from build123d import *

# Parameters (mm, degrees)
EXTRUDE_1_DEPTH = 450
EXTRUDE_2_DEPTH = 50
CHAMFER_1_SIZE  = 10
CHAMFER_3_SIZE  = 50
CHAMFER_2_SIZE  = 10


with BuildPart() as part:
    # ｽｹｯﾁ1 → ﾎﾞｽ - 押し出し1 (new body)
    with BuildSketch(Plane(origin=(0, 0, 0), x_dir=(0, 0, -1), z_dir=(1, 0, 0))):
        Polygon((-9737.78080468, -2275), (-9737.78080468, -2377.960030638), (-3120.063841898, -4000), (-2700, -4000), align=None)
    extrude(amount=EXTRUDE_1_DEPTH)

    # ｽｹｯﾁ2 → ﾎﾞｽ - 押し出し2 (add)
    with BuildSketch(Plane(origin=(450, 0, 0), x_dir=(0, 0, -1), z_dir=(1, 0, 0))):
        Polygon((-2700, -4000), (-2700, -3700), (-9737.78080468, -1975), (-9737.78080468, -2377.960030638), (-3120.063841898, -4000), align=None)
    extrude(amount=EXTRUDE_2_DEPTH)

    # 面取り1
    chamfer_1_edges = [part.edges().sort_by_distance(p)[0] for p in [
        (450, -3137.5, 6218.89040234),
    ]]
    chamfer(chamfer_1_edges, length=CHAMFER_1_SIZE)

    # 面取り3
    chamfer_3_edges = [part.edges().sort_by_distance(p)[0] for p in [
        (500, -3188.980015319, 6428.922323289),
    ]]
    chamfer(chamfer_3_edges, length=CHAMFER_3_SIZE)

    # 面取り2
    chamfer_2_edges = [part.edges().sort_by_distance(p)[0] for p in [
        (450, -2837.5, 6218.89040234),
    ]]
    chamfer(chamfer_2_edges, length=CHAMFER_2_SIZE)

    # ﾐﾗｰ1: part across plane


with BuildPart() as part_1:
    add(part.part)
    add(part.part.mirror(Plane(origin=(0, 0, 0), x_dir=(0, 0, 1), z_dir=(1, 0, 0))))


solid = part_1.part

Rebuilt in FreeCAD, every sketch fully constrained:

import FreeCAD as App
import Part
import Sketcher
from FreeCAD import Vector


def edges_at(feature, points):
    """Names of the edges that pass closest to the given points."""
    edges = feature.Shape.Edges
    near = lambda p: min(range(len(edges)), key=lambda i: edges[i].distToShape(Part.Vertex(*p))[0])
    return sorted({f"Edge{near(p) + 1}" for p in points})


def add_polygon(sketch, points):
    """Adds a closed chain of lines whose ends are joined by coincident constraints."""
    first, n = sketch.GeometryCount, len(points)
    for a, b in zip(points, points[1:] + points[:1]):
        sketch.addGeometry(Part.LineSegment(App.Vector(*a, 0), App.Vector(*b, 0)), False)
    for i in range(n):
        sketch.addConstraint(Sketcher.Constraint("Coincident", first + i, 2, first + (i + 1) % n, 1))

doc = App.newDocument("Part")
body = doc.addObject("PartDesign::Body", "Body")

# Sketch on YZ plane
sketch1 = body.newObject("Sketcher::SketchObject", "Sketch")
sketch1.AttachmentSupport = (doc.getObject("YZ_Plane"), [""])
sketch1.MapMode = "FlatFace"
add_polygon(sketch1, [(-2275, 9737.780805), (-2377.960031, 9737.780805), (-4000, 3120.063842), (-4000, 2700)])  # lines 0-3
sketch1.addConstraint(Sketcher.Constraint("Horizontal", 0))
sketch1.addConstraint(Sketcher.Constraint("Vertical", 2))
sketch1.addConstraint(Sketcher.Constraint("Parallel", 1, 3))
sketch1.addConstraint(Sketcher.Constraint("DistanceX", 1, 2, -1, 1, 4000.0))
sketch1.addConstraint(Sketcher.Constraint("DistanceY", -1, 1, 2, 2, 2700.0))
sketch1.addConstraint(Sketcher.Constraint("DistanceX", 3, 2, -1, 1, 2275.0))
sketch1.addConstraint(Sketcher.Constraint("DistanceX", 0, 2, 0, 1, 102.960031))
sketch1.addConstraint(Sketcher.Constraint("DistanceY", 2, 2, 2, 1, 420.063842))
pad1 = body.newObject("PartDesign::Pad", "Pad")
pad1.Profile = sketch1
pad1.Length = 450

# Sketch on YZ plane
sketch2 = body.newObject("Sketcher::SketchObject", "Sketch001")
sketch2.AttachmentSupport = (doc.getObject("YZ_Plane"), [""])
sketch2.MapMode = "FlatFace"
sketch2.AttachmentOffset = App.Placement(Vector(0, 0, 450), App.Rotation())
add_polygon(sketch2, [(-4000, 2700), (-3700, 2700), (-1975, 9737.780805), (-2377.960031, 9737.780805), (-4000, 3120.063842)])  # lines 0-4
sketch2.addConstraint(Sketcher.Constraint("Horizontal", 0))
sketch2.addConstraint(Sketcher.Constraint("Horizontal", 2))
sketch2.addConstraint(Sketcher.Constraint("Vertical", 4))
sketch2.addConstraint(Sketcher.Constraint("Parallel", 1, 3))
sketch2.addConstraint(Sketcher.Constraint("DistanceX", 0, 1, 0, 2, 300.0))
sketch2.addConstraint(Sketcher.Constraint("DistanceX", 0, 2, -1, 1, 3700.0))
sketch2.addConstraint(Sketcher.Constraint("DistanceY", -1, 1, 0, 2, 2700.0))
sketch2.addConstraint(Sketcher.Constraint("DistanceX", 1, 2, -1, 1, 1975.0))
sketch2.addConstraint(Sketcher.Constraint("DistanceX", 2, 2, 2, 1, 402.960031))
sketch2.addConstraint(Sketcher.Constraint("DistanceY", 4, 2, 4, 1, 420.063842))
pad2 = body.newObject("PartDesign::Pad", "Pad001")
pad2.Profile = sketch2
pad2.Length = 50
doc.recompute()

chamfer = body.newObject("PartDesign::Chamfer", "Chamfer")
chamfer.Base = (pad2, edges_at(pad2, [(450, -3137.5, 6218.89)]))
chamfer.Size = 10
doc.recompute()

chamfer2 = body.newObject("PartDesign::Chamfer", "Chamfer001")
chamfer2.Base = (chamfer, edges_at(chamfer, [(500, -3188.98, 6428.922)]))
chamfer2.Size = 50
doc.recompute()

chamfer3 = body.newObject("PartDesign::Chamfer", "Chamfer002")
chamfer3.Base = (chamfer2, edges_at(chamfer2, [(450, -2837.5, 6218.89)]))
chamfer3.Size = 10
body2 = doc.addObject("PartDesign::Body", "Body001")
doc.recompute()

body2.BaseFeature = body
doc.recompute()

mirroring = doc.addObject("Part::Mirroring", "Mirroring")
mirroring.Source = body
mirroring.Base = Vector(0, 0, 0)
mirroring.Normal = Vector(1, 0, 0)
body3 = doc.addObject("PartDesign::Body", "Body002")
body3.BaseFeature = mirroring
boolean = body2.newObject("PartDesign::Boolean", "Boolean")
boolean.Type = "Fuse"
boolean.addObjects([body3])
doc.recompute()
mirroring.Visibility = False

doc.recompute()
